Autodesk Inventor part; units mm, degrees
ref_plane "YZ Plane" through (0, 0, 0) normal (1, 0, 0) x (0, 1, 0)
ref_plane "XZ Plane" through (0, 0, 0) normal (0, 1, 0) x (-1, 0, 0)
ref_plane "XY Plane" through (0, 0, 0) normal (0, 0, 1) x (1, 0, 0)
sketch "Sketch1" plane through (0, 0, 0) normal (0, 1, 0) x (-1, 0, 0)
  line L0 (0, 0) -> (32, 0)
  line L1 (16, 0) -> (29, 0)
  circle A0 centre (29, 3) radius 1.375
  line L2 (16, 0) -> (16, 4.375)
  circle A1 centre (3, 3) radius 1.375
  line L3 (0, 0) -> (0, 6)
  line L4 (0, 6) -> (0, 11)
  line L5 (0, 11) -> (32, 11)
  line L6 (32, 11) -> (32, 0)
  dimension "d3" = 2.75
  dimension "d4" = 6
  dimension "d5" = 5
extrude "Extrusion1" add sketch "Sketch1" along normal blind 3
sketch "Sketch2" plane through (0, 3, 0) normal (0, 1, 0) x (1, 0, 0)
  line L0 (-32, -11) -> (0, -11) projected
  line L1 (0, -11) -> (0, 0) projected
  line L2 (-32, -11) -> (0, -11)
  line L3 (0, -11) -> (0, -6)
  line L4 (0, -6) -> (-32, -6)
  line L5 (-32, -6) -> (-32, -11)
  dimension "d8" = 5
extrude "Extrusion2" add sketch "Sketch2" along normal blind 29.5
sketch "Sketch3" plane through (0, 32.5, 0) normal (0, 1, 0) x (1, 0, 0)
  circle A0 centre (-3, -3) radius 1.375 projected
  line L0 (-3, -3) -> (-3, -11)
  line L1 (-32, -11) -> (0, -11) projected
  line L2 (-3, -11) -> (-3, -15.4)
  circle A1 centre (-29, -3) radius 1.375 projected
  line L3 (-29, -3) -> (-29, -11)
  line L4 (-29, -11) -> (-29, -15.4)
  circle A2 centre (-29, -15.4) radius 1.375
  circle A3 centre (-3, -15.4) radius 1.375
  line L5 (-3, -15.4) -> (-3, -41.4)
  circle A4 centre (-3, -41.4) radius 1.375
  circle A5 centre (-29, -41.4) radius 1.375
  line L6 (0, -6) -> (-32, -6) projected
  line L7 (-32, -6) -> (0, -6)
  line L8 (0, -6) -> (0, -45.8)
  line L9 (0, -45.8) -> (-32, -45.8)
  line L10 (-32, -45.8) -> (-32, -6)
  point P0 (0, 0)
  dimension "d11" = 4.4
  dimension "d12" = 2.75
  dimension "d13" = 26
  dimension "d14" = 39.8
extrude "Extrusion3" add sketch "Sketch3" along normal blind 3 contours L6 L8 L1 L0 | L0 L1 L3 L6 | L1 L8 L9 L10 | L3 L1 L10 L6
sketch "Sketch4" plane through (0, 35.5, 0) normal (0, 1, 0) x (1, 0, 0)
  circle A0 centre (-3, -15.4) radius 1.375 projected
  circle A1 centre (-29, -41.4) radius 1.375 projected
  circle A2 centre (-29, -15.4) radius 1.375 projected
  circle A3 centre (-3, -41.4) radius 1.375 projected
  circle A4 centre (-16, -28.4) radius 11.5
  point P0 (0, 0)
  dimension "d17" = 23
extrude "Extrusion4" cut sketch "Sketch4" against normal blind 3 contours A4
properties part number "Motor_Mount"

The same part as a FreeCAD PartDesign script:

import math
import FreeCAD as App
import Part
import Sketcher

V = App.Vector
Q = App.Units.Quantity


def add_polygon(sketch, points):
    """Adds a closed chain of lines whose ends are joined by coincident constraints."""
    first, n = sketch.GeometryCount, len(points)
    for a, b in zip(points, points[1:] + points[:1]):
        sketch.addGeometry(Part.LineSegment(App.Vector(*a, 0), App.Vector(*b, 0)), False)
    for i in range(n):
        sketch.addConstraint(Sketcher.Constraint("Coincident", first + i, 2, first + (i + 1) % n, 1))

doc = App.newDocument("Part")
params = doc.addObject("Spreadsheet::Sheet", "Params")
for row, (alias, value) in enumerate([
    ("sketch1_diameter", "2.75 mm"),
    ("sketch1_width", "32 mm"),
    ("sketch1_height", "11 mm"),
    ("pad1_length", "3 mm"),
    ("sketch2_height", "5 mm"),
    ("sketch2_width", "32 mm"),
    ("pad2_length", "29.5 mm"),
    ("sketch3_diameter", "2.75 mm"),
    ("sketch3_height", "39.8 mm"),
    ("sketch3_width", "32 mm"),
    ("pad3_length", "3 mm"),
    ("sketch4_diameter", "23 mm"),
    ("pocket1_length", "3 mm"),
], start=1):
    params.set(f"A{row}", alias)
    params.set(f"B{row}", "=" + value)
    params.setAlias(f"B{row}", alias)

body = doc.addObject("PartDesign::Body", "Body")

# Sketch on XZ plane
sketch1 = body.newObject("Sketcher::SketchObject", "Sketch")
sketch1.AttachmentSupport = (doc.getObject("XZ_Plane"), [""])
sketch1.MapMode = "FlatFace"
add_polygon(sketch1, [(0, 11), (0, 0), (-32, 0), (-32, 11)])  # lines 0-3
sketch1.addGeometry(Part.Circle(V(-3, 3, 0), V(0, 0, 1), 1.4), False)  # 4
sketch1.addGeometry(Part.Circle(V(-29, 3, 0), V(0, 0, 1), 1.4), False)  # 5
sketch1.addConstraint([
    Sketcher.Constraint("Vertical", 0),
    Sketcher.Constraint("Horizontal", 1),
    Sketcher.Constraint("Vertical", 2),
    Sketcher.Constraint("Horizontal", 3),
    Sketcher.Constraint("Coincident", 0, 2, -1, 1),
    Sketcher.Constraint("Equal", 4, 5),
    Sketcher.Constraint("Horizontal", 4, 3, 5, 3),
    Sketcher.Constraint("Diameter", 4, Q("2.75 mm")),
    Sketcher.Constraint("DistanceX", 1, 2, 1, 1, Q("32 mm")),
    Sketcher.Constraint("DistanceY", 0, 2, 0, 1, Q("11 mm")),
    Sketcher.Constraint("DistanceX", 4, 3, -1, 1, Q("3 mm")),
    Sketcher.Constraint("DistanceY", -1, 1, 4, 3, Q("3 mm")),
    Sketcher.Constraint("DistanceX", 5, 3, -1, 1, Q("29 mm")),
])
sketch1.setExpression("Constraints[11]", "Params.sketch1_diameter")
sketch1.setExpression("Constraints[12]", "Params.sketch1_width")
sketch1.setExpression("Constraints[13]", "Params.sketch1_height")
pad1 = body.newObject("PartDesign::Pad", "Pad")
pad1.Profile = sketch1
pad1.setExpression("Length", "Params.pad1_length")
pad1.Reversed = True

# Sketch on XZ plane
sketch2 = body.newObject("Sketcher::SketchObject", "Sketch001")
sketch2.AttachmentSupport = (doc.getObject("XZ_Plane"), [""])
sketch2.MapMode = "FlatFace"
sketch2.AttachmentOffset = App.Placement(V(0, 0, -3), App.Rotation())
add_polygon(sketch2, [(-32, 6), (-32, 11), (0, 11), (0, 6)])  # lines 0-3
sketch2.addConstraint([
    Sketcher.Constraint("Vertical", 0),
    Sketcher.Constraint("Horizontal", 1),
    Sketcher.Constraint("Vertical", 2),
    Sketcher.Constraint("Horizontal", 3),
    Sketcher.Constraint("PointOnObject", 1, 2, -2),
    Sketcher.Constraint("DistanceY", 0, 1, 0, 2, Q("5 mm")),
    Sketcher.Constraint("DistanceX", 1, 1, 1, 2, Q("32 mm")),
    Sketcher.Constraint("DistanceY", -1, 1, 0, 2, Q("11 mm")),
])
sketch2.setExpression("Constraints[9]", "Params.sketch2_height")
sketch2.setExpression("Constraints[10]", "Params.sketch2_width")
pad2 = body.newObject("PartDesign::Pad", "Pad001")
pad2.Profile = sketch2
pad2.setExpression("Length", "Params.pad2_length")
pad2.Reversed = True

# Sketch on XZ plane
sketch3 = body.newObject("Sketcher::SketchObject", "Sketch002")
sketch3.AttachmentSupport = (doc.getObject("XZ_Plane"), [""])
sketch3.MapMode = "FlatFace"
sketch3.AttachmentOffset = App.Placement(V(0, 0, -32.5), App.Rotation())
add_polygon(sketch3, [(0, 6), (-32, 6), (-32, 45.8), (0, 45.8)])  # lines 0-3
sketch3.addGeometry(Part.Circle(V(-29, 41.4, 0), V(0, 0, 1), 1.4), False)  # 4
sketch3.addGeometry(Part.Circle(V(-3, 41.4, 0), V(0, 0, 1), 1.4), False)  # 5
sketch3.addGeometry(Part.Circle(V(-29, 15.4, 0), V(0, 0, 1), 1.4), False)  # 6
sketch3.addGeometry(Part.ArcOfCircle(Part.Circle(V(-3, 15.4, 0), V(0, 0, 1), 1.4), math.radians(90), math.radians(270)), False)  # 7
sketch3.addGeometry(Part.ArcOfCircle(Part.Circle(V(-3, 15.4, 0), V(0, 0, 1), 1.4), math.radians(-90), math.radians(90)), False)  # 8
sketch3.addConstraint([
    Sketcher.Constraint("Tangent", 7, 1, 8, 2),
    Sketcher.Constraint("Coincident", 8, 1, 7, 2),
    Sketcher.Constraint("Horizontal", 0),
    Sketcher.Constraint("Vertical", 1),
    Sketcher.Constraint("Horizontal", 2),
    Sketcher.Constraint("Vertical", 3),
    Sketcher.Constraint("Equal", 4, 5),
    Sketcher.Constraint("Equal", 5, 6),
    Sketcher.Constraint("Equal", 6, 7),
    Sketcher.Constraint("PointOnObject", 2, 2, -2),
    Sketcher.Constraint("Horizontal", 4, 3, 5, 3),
    Sketcher.Constraint("Horizontal", 6, 3, 7, 3),
    Sketcher.Constraint("Vertical", 4, 3, 6, 3),
    Sketcher.Constraint("Vertical", 5, 3, 7, 3),
    Sketcher.Constraint("Vertical", 8, 3, 7, 1),
    Sketcher.Constraint("Vertical", 7, 1, 8, 1),
    Sketcher.Constraint("Diameter", 4, Q("2.75 mm")),
    Sketcher.Constraint("DistanceY", 1, 1, 1, 2, Q("39.8 mm")),
    Sketcher.Constraint("DistanceX", 4, 3, 5, 3, Q("26 mm")),
    Sketcher.Constraint("DistanceY", 6, 3, 4, 3, Q("26 mm")),
    Sketcher.Constraint("DistanceY", 4, 3, 1, 2, Q("4.4 mm")),
    Sketcher.Constraint("DistanceX", 0, 2, 0, 1, Q("32 mm")),
    Sketcher.Constraint("DistanceX", 4, 3, -1, 1, Q("29 mm")),
    Sketcher.Constraint("DistanceY", -1, 1, 0, 2, Q("6 mm")),
])
sketch3.setExpression("Constraints[20]", "Params.sketch3_diameter")
sketch3.setExpression("Constraints[21]", "Params.sketch3_height")
sketch3.setExpression("Constraints[25]", "Params.sketch3_width")
pad3 = body.newObject("PartDesign::Pad", "Pad002")
pad3.Profile = sketch3
pad3.setExpression("Length", "Params.pad3_length")
pad3.Reversed = True

# Sketch on XZ plane
sketch4 = body.newObject("Sketcher::SketchObject", "Sketch003")
sketch4.AttachmentSupport = (doc.getObject("XZ_Plane"), [""])
sketch4.MapMode = "FlatFace"
sketch4.AttachmentOffset = App.Placement(V(0, 0, -35.5), App.Rotation())
sketch4.addGeometry(Part.Circle(V(-16, 28, 0), V(0, 0, 1), 12), False)
sketch4.addConstraint([
    Sketcher.Constraint("Diameter", 0, Q("23 mm")),
    Sketcher.Constraint("DistanceX", 0, 3, -1, 1, Q("16 mm")),
    Sketcher.Constraint("DistanceY", -1, 1, 0, 3, Q("28.4 mm")),
])
sketch4.setExpression("Constraints[0]", "Params.sketch4_diameter")
pocket1 = body.newObject("PartDesign::Pocket", "Pocket")
pocket1.Profile = sketch4
pocket1.setExpression("Length", "Params.pocket1_length")
pocket1.Reversed = True

doc.recompute()
